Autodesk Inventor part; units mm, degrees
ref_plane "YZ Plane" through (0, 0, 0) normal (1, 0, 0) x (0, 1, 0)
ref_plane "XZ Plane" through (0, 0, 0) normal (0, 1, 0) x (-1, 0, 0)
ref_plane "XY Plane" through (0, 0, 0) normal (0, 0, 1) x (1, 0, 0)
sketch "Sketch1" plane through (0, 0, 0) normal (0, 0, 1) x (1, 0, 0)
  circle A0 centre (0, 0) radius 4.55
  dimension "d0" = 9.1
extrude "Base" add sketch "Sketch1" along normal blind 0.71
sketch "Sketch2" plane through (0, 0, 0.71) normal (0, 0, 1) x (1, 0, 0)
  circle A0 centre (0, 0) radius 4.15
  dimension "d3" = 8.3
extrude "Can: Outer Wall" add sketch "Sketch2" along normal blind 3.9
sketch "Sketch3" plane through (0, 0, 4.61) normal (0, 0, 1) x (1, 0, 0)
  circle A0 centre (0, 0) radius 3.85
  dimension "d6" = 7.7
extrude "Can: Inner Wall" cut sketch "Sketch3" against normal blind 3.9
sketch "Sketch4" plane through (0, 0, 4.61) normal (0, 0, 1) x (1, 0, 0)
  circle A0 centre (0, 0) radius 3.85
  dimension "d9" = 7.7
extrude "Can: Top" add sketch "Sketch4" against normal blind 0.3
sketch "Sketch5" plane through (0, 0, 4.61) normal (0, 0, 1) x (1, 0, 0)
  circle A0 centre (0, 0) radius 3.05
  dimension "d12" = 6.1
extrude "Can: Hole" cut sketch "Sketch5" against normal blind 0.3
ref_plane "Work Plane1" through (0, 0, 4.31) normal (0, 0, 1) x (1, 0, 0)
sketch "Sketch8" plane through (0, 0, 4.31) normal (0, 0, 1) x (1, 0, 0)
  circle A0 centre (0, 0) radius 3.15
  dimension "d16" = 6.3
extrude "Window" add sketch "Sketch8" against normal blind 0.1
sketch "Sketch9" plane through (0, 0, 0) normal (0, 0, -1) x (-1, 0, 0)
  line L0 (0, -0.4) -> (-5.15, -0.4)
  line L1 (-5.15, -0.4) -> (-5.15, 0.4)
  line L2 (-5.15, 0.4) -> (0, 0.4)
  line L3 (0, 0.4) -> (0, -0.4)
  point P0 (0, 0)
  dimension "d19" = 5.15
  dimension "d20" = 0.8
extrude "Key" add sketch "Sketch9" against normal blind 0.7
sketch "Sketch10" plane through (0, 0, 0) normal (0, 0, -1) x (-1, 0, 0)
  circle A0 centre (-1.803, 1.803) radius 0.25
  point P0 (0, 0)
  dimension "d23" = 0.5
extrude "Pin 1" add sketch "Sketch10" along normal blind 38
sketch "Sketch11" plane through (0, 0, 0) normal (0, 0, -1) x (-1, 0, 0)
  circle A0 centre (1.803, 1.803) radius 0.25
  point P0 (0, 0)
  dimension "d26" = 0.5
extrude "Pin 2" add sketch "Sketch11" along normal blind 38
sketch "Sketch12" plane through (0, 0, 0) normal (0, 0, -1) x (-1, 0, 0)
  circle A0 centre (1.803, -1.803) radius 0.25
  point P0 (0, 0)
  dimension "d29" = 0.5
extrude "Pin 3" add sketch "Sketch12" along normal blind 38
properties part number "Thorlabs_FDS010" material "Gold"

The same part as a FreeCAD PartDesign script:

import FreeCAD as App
import Part
import Sketcher
from FreeCAD import Vector

doc = App.newDocument("Part")
body = doc.addObject("PartDesign::Body", "Body")

# Sketch on XY plane
sketch1 = body.newObject("Sketcher::SketchObject", "Sketch")
sketch1.AttachmentSupport = (doc.getObject("XY_Plane"), [""])
sketch1.MapMode = "FlatFace"
sketch1.addGeometry(Part.Circle(Vector(0, 0, 0), Vector(0, 0, 1), 4.5), False)
sketch1.addConstraint(Sketcher.Constraint("Coincident", 0, 3, -1, 1))
sketch1.addConstraint(Sketcher.Constraint("Diameter", 0, 9.1))
pad1 = body.newObject("PartDesign::Pad", "Pad")
pad1.Profile = sketch1
pad1.Length = 0.71

# Sketch on XY plane
sketch2 = body.newObject("Sketcher::SketchObject", "Sketch001")
sketch2.AttachmentSupport = (doc.getObject("XY_Plane"), [""])
sketch2.MapMode = "FlatFace"
sketch2.AttachmentOffset = App.Placement(Vector(0, 0, 0.71), App.Rotation())
sketch2.addGeometry(Part.Circle(Vector(0, 0, 0), Vector(0, 0, 1), 4.2), False)
sketch2.addConstraint(Sketcher.Constraint("Coincident", 0, 3, -1, 1))
sketch2.addConstraint(Sketcher.Constraint("Diameter", 0, 8.3))
pad2 = body.newObject("PartDesign::Pad", "Pad001")
pad2.Profile = sketch2
pad2.Length = 3.9

# Sketch on XY plane
sketch3 = body.newObject("Sketcher::SketchObject", "Sketch002")
sketch3.AttachmentSupport = (doc.getObject("XY_Plane"), [""])
sketch3.MapMode = "FlatFace"
sketch3.AttachmentOffset = App.Placement(Vector(0, 0, 4.61), App.Rotation())
sketch3.addGeometry(Part.Circle(Vector(0, 0, 0), Vector(0, 0, 1), 3.9), False)
sketch3.addConstraint(Sketcher.Constraint("Coincident", 0, 3, -1, 1))
sketch3.addConstraint(Sketcher.Constraint("Diameter", 0, 7.7))
pocket1 = body.newObject("PartDesign::Pocket", "Pocket")
pocket1.Profile = sketch3
pocket1.Length = 3.9

# Sketch on XY plane
sketch4 = body.newObject("Sketcher::SketchObject", "Sketch003")
sketch4.AttachmentSupport = (doc.getObject("XY_Plane"), [""])
sketch4.MapMode = "FlatFace"
sketch4.AttachmentOffset = App.Placement(Vector(0, 0, 4.61), App.Rotation())
sketch4.addGeometry(Part.Circle(Vector(0, 0, 0), Vector(0, 0, 1), 3.9), False)
sketch4.addConstraint(Sketcher.Constraint("Coincident", 0, 3, -1, 1))
sketch4.addConstraint(Sketcher.Constraint("Diameter", 0, 7.7))
pad3 = body.newObject("PartDesign::Pad", "Pad002")
pad3.Profile = sketch4
pad3.Length = 0.3
pad3.Reversed = True

# Sketch on XY plane
sketch5 = body.newObject("Sketcher::SketchObject", "Sketch004")
sketch5.AttachmentSupport = (doc.getObject("XY_Plane"), [""])
sketch5.MapMode = "FlatFace"
sketch5.AttachmentOffset = App.Placement(Vector(0, 0, 4.61), App.Rotation())
sketch5.addGeometry(Part.Circle(Vector(0, 0, 0), Vector(0, 0, 1), 3), False)
sketch5.addConstraint(Sketcher.Constraint("Coincident", 0, 3, -1, 1))
sketch5.addConstraint(Sketcher.Constraint("Diameter", 0, 6.1))
pocket2 = body.newObject("PartDesign::Pocket", "Pocket001")
pocket2.Profile = sketch5
pocket2.Length = 0.3

# Sketch on XY plane
sketch6 = body.newObject("Sketcher::SketchObject", "Sketch005")
sketch6.AttachmentSupport = (doc.getObject("XY_Plane"), [""])
sketch6.MapMode = "FlatFace"
sketch6.AttachmentOffset = App.Placement(Vector(0, 0, 4.31), App.Rotation())
sketch6.addGeometry(Part.Circle(Vector(0, 0, 0), Vector(0, 0, 1), 3.1), False)
sketch6.addConstraint(Sketcher.Constraint("Coincident", 0, 3, -1, 1))
sketch6.addConstraint(Sketcher.Constraint("Diameter", 0, 6.3))
pad4 = body.newObject("PartDesign::Pad", "Pad003")
pad4.Profile = sketch6
pad4.Length = 0.1
pad4.Reversed = True

# Sketch on XY plane
sketch7 = body.newObject("Sketcher::SketchObject", "Sketch006")
sketch7.AttachmentSupport = (doc.getObject("XY_Plane"), [""])
sketch7.MapMode = "FlatFace"
sketch7.addGeometry(Part.LineSegment(Vector(5.2, -0.4, 0), Vector(0, -0.4, 0)), False)
sketch7.addGeometry(Part.LineSegment(Vector(0, -0.4, 0), Vector(0, 0.4, 0)), False)
sketch7.addGeometry(Part.LineSegment(Vector(0, 0.4, 0), Vector(5.2, 0.4, 0)), False)
sketch7.addGeometry(Part.LineSegment(Vector(5.2, 0.4, 0), Vector(5.2, -0.4, 0)), False)
sketch7.addConstraint(Sketcher.Constraint("Coincident", 0, 2, 1, 1))
sketch7.addConstraint(Sketcher.Constraint("Coincident", 1, 2, 2, 1))
sketch7.addConstraint(Sketcher.Constraint("Coincident", 2, 2, 3, 1))
sketch7.addConstraint(Sketcher.Constraint("Coincident", 3, 2, 0, 1))
sketch7.addConstraint(Sketcher.Constraint("Horizontal", 0))
sketch7.addConstraint(Sketcher.Constraint("Vertical", 1))
sketch7.addConstraint(Sketcher.Constraint("Horizontal", 2))
sketch7.addConstraint(Sketcher.Constraint("Vertical", 3))
sketch7.addConstraint(Sketcher.Constraint("Symmetric", 0, 2, 1, 2, -1, 1))
sketch7.addConstraint(Sketcher.Constraint("DistanceY", 1, 1, 1, 2, 0.8))
sketch7.addConstraint(Sketcher.Constraint("DistanceX", 0, 2, 0, 1, 5.15))
pad5 = body.newObject("PartDesign::Pad", "Pad004")
pad5.Profile = sketch7
pad5.Length = 0.7

# Sketch on XY plane
sketch8 = body.newObject("Sketcher::SketchObject", "Sketch007")
sketch8.AttachmentSupport = (doc.getObject("XY_Plane"), [""])
sketch8.MapMode = "FlatFace"
sketch8.addGeometry(Part.Circle(Vector(1.8, 1.8, 0), Vector(0, 0, 1), 0.25), False)
sketch8.addConstraint(Sketcher.Constraint("Diameter", 0, 0.5))
sketch8.addConstraint(Sketcher.Constraint("DistanceX", -1, 1, 0, 3, 1.803))
sketch8.addConstraint(Sketcher.Constraint("DistanceY", -1, 1, 0, 3, 1.803))
pad6 = body.newObject("PartDesign::Pad", "Pad005")
pad6.Profile = sketch8
pad6.Length = 38
pad6.Reversed = True

# Sketch on XY plane
sketch9 = body.newObject("Sketcher::SketchObject", "Sketch008")
sketch9.AttachmentSupport = (doc.getObject("XY_Plane"), [""])
sketch9.MapMode = "FlatFace"
sketch9.addGeometry(Part.Circle(Vector(-1.8, 1.8, 0), Vector(0, 0, 1), 0.25), False)
sketch9.addConstraint(Sketcher.Constraint("Diameter", 0, 0.5))
sketch9.addConstraint(Sketcher.Constraint("DistanceX", 0, 3, -1, 1, 1.803))
sketch9.addConstraint(Sketcher.Constraint("DistanceY", -1, 1, 0, 3, 1.803))
pad7 = body.newObject("PartDesign::Pad", "Pad006")
pad7.Profile = sketch9
pad7.Length = 38
pad7.Reversed = True

# Sketch on XY plane
sketch10 = body.newObject("Sketcher::SketchObject", "Sketch009")
sketch10.AttachmentSupport = (doc.getObject("XY_Plane"), [""])
sketch10.MapMode = "FlatFace"
sketch10.addGeometry(Part.Circle(Vector(-1.8, -1.8, 0), Vector(0, 0, 1), 0.25), False)
sketch10.addConstraint(Sketcher.Constraint("Diameter", 0, 0.5))
sketch10.addConstraint(Sketcher.Constraint("DistanceX", 0, 3, -1, 1, 1.803))
sketch10.addConstraint(Sketcher.Constraint("DistanceY", 0, 3, -1, 1, 1.803))
pad8 = body.newObject("PartDesign::Pad", "Pad007")
pad8.Profile = sketch10
pad8.Length = 38
pad8.Reversed = True

doc.recompute()
